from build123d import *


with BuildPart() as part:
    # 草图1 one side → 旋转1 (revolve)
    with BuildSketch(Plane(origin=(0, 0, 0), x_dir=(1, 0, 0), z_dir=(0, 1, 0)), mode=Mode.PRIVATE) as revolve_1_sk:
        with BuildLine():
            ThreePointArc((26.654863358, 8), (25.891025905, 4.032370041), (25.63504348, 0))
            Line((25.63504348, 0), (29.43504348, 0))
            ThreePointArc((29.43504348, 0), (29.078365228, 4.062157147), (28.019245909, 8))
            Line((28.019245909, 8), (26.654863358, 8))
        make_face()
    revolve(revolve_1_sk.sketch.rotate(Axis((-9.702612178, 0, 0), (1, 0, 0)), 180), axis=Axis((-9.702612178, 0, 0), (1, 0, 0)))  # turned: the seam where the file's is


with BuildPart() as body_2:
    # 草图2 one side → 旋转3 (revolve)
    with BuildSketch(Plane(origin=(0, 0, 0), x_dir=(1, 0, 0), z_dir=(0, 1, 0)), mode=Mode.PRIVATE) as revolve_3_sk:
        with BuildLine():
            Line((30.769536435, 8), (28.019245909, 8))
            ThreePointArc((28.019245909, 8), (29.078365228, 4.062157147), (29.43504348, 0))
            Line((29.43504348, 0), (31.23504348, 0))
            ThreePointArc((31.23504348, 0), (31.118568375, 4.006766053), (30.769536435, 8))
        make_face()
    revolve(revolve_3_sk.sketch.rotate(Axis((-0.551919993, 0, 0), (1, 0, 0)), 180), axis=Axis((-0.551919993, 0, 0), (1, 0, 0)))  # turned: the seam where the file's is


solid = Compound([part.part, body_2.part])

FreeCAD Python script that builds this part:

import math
import FreeCAD as App
import Part
import Sketcher
from FreeCAD import Vector
Q = App.Units.Quantity

doc = App.newDocument("Part")
body = doc.addObject("PartDesign::Body", "Body")

# Sketch on XZ plane
sketch1 = body.newObject("Sketcher::SketchObject", "Sketch")
sketch1.AttachmentSupport = (doc.getObject("XZ_Plane"), [""])
sketch1.MapMode = "FlatFace"
sketch1.addGeometry([
    Part.ArcOfCircle(Part.Circle(Vector(57.523043, 0, 0), Vector(0, 0, 1), 31.888), math.radians(180), math.radians(194.529478)),
    Part.LineSegment(Vector(25.635043, 0, 0), Vector(29.435043, 0, 0)),
    Part.ArcOfCircle(Part.Circle(Vector(6.125043, 0, 0), Vector(0, 0, 1), 23.31), math.radians(-20.071977), math.radians(0)),
    Part.LineSegment(Vector(28.019246, -8, 0), Vector(26.654863, -8, 0)),
], False)
sketch1.addConstraint([
    Sketcher.Constraint("Coincident", 0, 1, 1, 1),
    Sketcher.Constraint("Coincident", 1, 2, 2, 2),
    Sketcher.Constraint("Coincident", 2, 1, 3, 1),
    Sketcher.Constraint("Coincident", 3, 2, 0, 2),
    Sketcher.Constraint("Horizontal", 1),
    Sketcher.Constraint("Horizontal", 3),
    Sketcher.Constraint("PointOnObject", 0, 3, -1),
    Sketcher.Constraint("PointOnObject", 2, 3, -1),
    Sketcher.Constraint("PointOnObject", 0, 1, -1),
    Sketcher.Constraint("Radius", 2, Q("23.31 mm")),
    Sketcher.Constraint("DistanceX", 1, 1, 1, 2, Q("3.8 mm")),
    Sketcher.Constraint("DistanceY", 2, 1, -1, 1, Q("8 mm")),
    Sketcher.Constraint("Radius", 0, Q("31.888 mm")),
    Sketcher.Constraint("DistanceX", -1, 1, 0, 3, Q("57.523043 mm")),
])
revolution = body.newObject("PartDesign::Revolution", "Revolution")
revolution.Profile = sketch1
revolution.ReferenceAxis = (sketch1, ["H_Axis"])
revolution.Angle = 360
body2 = doc.addObject("PartDesign::Body", "Body001")

# Sketch on XZ plane
sketch2 = body2.newObject("Sketcher::SketchObject", "Sketch001")
sketch2.AttachmentSupport = (doc.getObject("XZ_Plane001"), [""])
sketch2.MapMode = "FlatFace"
sketch2.addGeometry([
    Part.LineSegment(Vector(30.769536, -8, 0), Vector(28.019246, -8, 0)),
    Part.ArcOfCircle(Part.Circle(Vector(6.125043, 0, 0), Vector(0, 0, 1), 23.31), math.radians(-20.071977), math.radians(0)),
    Part.LineSegment(Vector(29.435043, 0, 0), Vector(31.235043, 0, 0)),
    Part.ArcOfCircle(Part.Circle(Vector(-37.739957, 0, 0), Vector(0, 0, 1), 68.975), math.radians(-6.660387), math.radians(0)),
], False)
sketch2.addConstraint([
    Sketcher.Constraint("Coincident", 0, 2, 1, 1),
    Sketcher.Constraint("Coincident", 1, 2, 2, 1),
    Sketcher.Constraint("Coincident", 2, 2, 3, 2),
    Sketcher.Constraint("Coincident", 3, 1, 0, 1),
    Sketcher.Constraint("Horizontal", 0),
    Sketcher.Constraint("Horizontal", 2),
    Sketcher.Constraint("PointOnObject", 1, 3, -1),
    Sketcher.Constraint("PointOnObject", 3, 3, -1),
    Sketcher.Constraint("PointOnObject", 1, 2, -1),
    Sketcher.Constraint("Radius", 1, Q("23.31 mm")),
    Sketcher.Constraint("DistanceX", 2, 1, 2, 2, Q("1.8 mm")),
    Sketcher.Constraint("DistanceY", 0, 2, -1, 1, Q("8 mm")),
    Sketcher.Constraint("Radius", 3, Q("68.975 mm")),
    Sketcher.Constraint("DistanceX", -1, 1, 1, 3, Q("6.125043 mm")),
])
revolution2 = body2.newObject("PartDesign::Revolution", "Revolution001")
revolution2.Profile = sketch2
revolution2.ReferenceAxis = (sketch2, ["H_Axis"])
revolution2.Angle = 360

doc.recompute()
